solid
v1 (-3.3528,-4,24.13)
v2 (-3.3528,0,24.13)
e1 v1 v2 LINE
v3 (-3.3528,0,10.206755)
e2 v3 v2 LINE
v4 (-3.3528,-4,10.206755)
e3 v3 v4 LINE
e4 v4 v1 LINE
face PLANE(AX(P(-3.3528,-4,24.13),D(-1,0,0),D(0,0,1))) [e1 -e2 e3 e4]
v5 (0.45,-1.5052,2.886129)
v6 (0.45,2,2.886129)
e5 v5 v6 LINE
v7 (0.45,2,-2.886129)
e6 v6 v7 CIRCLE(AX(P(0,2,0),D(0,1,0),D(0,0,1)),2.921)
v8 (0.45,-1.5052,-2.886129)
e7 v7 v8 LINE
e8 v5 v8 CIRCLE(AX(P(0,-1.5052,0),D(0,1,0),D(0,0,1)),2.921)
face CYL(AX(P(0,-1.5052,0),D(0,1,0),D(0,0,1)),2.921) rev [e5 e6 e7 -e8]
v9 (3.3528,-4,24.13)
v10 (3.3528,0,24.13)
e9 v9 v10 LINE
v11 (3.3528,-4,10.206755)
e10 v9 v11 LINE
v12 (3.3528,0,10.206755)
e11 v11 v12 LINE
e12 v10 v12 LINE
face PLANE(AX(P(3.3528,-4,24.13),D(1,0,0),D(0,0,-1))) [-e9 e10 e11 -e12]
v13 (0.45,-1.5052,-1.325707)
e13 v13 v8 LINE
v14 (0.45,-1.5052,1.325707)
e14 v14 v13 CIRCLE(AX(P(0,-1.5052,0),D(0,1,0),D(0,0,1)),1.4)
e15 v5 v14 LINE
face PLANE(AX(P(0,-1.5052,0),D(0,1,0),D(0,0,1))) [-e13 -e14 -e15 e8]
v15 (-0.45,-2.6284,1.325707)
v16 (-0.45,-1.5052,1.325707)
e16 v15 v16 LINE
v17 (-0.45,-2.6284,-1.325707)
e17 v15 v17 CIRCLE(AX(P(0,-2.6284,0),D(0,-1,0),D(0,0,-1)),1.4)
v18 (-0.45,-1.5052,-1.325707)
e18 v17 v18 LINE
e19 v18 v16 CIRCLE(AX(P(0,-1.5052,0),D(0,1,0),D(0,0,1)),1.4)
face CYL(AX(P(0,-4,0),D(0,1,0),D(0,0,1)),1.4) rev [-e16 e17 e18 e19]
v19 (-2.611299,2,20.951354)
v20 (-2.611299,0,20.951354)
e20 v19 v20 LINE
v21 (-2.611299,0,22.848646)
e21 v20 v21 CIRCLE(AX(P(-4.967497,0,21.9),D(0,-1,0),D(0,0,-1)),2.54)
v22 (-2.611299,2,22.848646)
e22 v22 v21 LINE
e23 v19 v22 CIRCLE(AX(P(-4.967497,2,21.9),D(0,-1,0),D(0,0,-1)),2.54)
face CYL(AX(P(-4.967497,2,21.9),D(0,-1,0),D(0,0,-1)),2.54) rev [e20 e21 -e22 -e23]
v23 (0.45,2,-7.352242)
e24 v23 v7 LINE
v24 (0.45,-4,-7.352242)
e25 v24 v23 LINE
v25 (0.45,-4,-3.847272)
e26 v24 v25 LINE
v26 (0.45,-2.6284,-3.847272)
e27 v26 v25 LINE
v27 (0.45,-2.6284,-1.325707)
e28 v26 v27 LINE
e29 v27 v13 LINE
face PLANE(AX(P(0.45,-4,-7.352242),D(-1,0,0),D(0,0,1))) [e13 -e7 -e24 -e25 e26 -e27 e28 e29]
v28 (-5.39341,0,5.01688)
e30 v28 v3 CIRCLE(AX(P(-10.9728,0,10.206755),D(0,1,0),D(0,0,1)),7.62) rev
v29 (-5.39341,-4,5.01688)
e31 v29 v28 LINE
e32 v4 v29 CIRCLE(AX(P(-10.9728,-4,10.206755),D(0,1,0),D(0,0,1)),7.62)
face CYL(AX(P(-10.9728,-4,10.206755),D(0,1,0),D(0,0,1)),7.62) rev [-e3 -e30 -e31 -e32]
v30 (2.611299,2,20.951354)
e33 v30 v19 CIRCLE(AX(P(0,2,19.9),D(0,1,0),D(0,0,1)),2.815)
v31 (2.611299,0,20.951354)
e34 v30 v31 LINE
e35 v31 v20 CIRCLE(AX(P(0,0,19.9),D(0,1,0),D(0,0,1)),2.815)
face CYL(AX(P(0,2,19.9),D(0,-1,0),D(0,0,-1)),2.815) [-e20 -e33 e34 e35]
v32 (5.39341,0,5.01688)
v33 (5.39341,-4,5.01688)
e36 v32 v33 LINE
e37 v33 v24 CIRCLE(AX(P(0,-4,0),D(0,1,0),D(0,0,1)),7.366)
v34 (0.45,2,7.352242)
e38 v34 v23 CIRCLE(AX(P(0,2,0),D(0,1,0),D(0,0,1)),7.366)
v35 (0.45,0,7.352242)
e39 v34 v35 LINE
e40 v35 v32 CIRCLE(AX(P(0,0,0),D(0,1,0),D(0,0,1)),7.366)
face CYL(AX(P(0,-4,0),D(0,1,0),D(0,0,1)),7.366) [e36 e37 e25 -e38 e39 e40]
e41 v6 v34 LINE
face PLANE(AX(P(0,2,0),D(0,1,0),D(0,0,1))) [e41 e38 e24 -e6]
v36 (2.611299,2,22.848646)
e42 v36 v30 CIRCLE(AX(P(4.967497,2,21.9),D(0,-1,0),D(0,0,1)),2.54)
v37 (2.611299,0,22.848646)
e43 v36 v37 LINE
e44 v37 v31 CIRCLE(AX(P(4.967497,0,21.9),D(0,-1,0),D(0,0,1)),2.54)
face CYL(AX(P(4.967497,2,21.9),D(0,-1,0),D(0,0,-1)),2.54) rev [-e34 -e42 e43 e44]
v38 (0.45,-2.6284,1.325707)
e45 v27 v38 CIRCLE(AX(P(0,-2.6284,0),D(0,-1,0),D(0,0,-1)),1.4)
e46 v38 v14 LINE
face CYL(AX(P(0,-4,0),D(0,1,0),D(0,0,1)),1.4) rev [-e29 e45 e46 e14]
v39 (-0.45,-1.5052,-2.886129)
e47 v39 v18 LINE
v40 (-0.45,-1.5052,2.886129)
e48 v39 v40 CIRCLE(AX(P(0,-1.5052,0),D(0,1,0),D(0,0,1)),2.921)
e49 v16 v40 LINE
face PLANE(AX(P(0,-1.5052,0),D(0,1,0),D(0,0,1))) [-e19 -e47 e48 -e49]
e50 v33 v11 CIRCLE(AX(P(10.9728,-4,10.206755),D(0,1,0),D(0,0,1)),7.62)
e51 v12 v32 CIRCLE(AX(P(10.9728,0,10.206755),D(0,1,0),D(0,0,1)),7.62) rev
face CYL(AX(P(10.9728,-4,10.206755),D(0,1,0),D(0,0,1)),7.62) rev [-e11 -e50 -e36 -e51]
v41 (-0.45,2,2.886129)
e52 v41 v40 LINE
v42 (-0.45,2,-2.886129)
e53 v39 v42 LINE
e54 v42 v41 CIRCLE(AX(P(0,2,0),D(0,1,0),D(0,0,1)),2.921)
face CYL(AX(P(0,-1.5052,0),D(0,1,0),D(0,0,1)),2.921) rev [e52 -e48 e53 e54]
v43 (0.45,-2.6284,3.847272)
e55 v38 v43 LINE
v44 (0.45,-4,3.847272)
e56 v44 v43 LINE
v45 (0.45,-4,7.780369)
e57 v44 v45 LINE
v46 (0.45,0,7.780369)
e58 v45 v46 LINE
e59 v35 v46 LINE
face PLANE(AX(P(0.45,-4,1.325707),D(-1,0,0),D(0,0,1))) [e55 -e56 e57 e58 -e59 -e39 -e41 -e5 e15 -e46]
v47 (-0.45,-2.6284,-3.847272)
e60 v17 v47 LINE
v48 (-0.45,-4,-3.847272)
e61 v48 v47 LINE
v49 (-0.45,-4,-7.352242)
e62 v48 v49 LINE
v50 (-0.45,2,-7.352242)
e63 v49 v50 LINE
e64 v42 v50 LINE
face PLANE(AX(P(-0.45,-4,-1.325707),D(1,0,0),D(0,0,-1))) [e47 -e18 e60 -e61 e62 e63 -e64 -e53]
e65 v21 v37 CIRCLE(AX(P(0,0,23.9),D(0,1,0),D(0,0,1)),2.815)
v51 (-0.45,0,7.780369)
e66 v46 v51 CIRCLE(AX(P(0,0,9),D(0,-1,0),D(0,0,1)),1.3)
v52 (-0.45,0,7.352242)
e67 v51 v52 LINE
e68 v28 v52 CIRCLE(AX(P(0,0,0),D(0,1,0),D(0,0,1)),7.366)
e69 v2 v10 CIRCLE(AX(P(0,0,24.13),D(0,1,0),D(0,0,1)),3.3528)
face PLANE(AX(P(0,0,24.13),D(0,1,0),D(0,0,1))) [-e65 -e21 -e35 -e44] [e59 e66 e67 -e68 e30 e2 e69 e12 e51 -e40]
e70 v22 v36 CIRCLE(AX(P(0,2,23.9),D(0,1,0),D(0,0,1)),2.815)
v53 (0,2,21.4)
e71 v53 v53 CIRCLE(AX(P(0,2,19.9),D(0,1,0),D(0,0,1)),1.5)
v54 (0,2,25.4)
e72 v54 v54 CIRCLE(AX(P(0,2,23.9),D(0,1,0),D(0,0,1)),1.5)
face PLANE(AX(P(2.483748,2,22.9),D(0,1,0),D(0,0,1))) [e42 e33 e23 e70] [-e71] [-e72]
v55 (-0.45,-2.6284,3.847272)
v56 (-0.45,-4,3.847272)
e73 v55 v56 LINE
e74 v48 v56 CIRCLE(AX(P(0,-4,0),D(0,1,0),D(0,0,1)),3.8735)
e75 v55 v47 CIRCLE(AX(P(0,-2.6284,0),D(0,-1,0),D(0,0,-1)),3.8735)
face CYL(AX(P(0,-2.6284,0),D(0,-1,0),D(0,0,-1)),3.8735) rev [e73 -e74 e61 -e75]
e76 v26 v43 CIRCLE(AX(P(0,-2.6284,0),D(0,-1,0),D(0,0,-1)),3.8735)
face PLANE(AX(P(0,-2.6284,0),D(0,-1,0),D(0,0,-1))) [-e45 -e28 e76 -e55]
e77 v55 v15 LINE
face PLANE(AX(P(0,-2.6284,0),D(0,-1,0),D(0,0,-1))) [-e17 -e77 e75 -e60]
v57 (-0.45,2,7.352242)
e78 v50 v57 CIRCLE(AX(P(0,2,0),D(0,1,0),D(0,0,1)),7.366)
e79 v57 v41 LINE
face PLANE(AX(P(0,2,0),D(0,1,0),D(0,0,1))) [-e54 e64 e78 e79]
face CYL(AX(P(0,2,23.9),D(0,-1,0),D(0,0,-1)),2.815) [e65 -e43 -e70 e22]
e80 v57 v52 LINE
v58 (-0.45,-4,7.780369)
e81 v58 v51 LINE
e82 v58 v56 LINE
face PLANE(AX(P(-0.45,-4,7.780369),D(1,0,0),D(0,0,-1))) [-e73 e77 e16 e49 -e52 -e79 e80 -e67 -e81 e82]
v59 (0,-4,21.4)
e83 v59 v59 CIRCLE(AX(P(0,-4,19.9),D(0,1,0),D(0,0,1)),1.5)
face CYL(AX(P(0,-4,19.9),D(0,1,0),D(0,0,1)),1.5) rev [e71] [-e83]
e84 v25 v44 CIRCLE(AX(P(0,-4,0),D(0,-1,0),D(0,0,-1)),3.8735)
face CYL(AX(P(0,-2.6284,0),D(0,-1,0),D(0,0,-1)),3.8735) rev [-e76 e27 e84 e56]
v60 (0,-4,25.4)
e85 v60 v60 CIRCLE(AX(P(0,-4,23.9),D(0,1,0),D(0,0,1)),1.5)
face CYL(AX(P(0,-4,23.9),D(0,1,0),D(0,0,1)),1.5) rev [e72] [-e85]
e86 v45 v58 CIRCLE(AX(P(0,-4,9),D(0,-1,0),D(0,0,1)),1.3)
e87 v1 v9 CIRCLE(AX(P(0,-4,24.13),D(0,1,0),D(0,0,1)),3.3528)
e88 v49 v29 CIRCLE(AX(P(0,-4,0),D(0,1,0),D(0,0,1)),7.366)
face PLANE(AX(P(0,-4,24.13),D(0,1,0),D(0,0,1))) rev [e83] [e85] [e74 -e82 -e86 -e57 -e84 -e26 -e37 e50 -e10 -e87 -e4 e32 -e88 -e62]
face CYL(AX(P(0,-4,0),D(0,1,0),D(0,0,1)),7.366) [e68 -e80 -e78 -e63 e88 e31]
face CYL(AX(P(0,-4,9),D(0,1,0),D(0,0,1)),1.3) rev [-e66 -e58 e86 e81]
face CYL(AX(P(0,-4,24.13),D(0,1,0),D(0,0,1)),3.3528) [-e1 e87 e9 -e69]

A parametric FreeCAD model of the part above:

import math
import FreeCAD as App
import Part
import Sketcher
Q = App.Units.Quantity


def edges_at(feature, points):
    """Names of the edges that pass closest to the given points."""
    edges = feature.Shape.Edges
    near = lambda p: min(range(len(edges)), key=lambda i: edges[i].distToShape(Part.Vertex(*p))[0])
    return sorted({f"Edge{near(p) + 1}" for p in points})

doc = App.newDocument("Part")
body = doc.addObject("PartDesign::Body", "Body")

# Sketch on XZ plane
sketch1 = body.newObject("Sketcher::SketchObject", "Sketch")
sketch1.AttachmentSupport = (doc.getObject("XZ_Plane"), [""])
sketch1.MapMode = "FlatFace"
sketch1.addGeometry([
    Part.LineSegment(App.Vector(-3.4, 6.6, 0), App.Vector(-3.4, 24.1, 0)),  # 0
    Part.ArcOfCircle(Part.Circle(App.Vector(0, 24.1, 0), App.Vector(0, 0, 1), 3.4), math.radians(0), math.radians(180)),  # 1
    Part.LineSegment(App.Vector(3.4, 24.1, 0), App.Vector(3.4, 6.6, 0)),  # 2
    Part.ArcOfCircle(Part.Circle(App.Vector(0, 0, 0), App.Vector(0, 0, 1), 7.4), math.radians(-86), math.radians(63)),  # 3
    Part.LineSegment(App.Vector(0.5, -7.4, 0), App.Vector(0.5, -1.3, 0)),  # 4
    Part.ArcOfCircle(Part.Circle(App.Vector(0, 0, 0), App.Vector(0, 0, 1), 1.4), math.radians(-71), math.radians(71)),  # 5
    Part.LineSegment(App.Vector(0.5, 1.3, 0), App.Vector(0.5, 7.8, 0)),  # 6
    Part.ArcOfCircle(Part.Circle(App.Vector(0, 9, 0), App.Vector(0, 0, 1), 1.3), math.radians(-70), math.radians(250)),  # 7
    Part.LineSegment(App.Vector(-0.5, 7.8, 0), App.Vector(-0.5, 1.3, 0)),  # 8
    Part.ArcOfCircle(Part.Circle(App.Vector(0, 0, 0), App.Vector(0, 0, 1), 1.4), math.radians(109), math.radians(251)),  # 9
    Part.LineSegment(App.Vector(-0.5, -1.3, 0), App.Vector(-0.5, -7.4, 0)),  # 10
    Part.ArcOfCircle(Part.Circle(App.Vector(0, 0, 0), App.Vector(0, 0, 1), 7.4), math.radians(117), math.radians(266)),  # 11
    Part.Circle(App.Vector(0, 23.9, 0), App.Vector(0, 0, 1), 1.5),  # 12
    Part.Circle(App.Vector(0, 19.9, 0), App.Vector(0, 0, 1), 1.5),  # 13
], False)
sketch1.addConstraint([
    Sketcher.Constraint("Tangent", 0, 2, 1, 2),
    Sketcher.Constraint("Tangent", 1, 1, 2, 1),
    Sketcher.Constraint("Coincident", 2, 2, 3, 2),
    Sketcher.Constraint("Coincident", 3, 1, 4, 1),
    Sketcher.Constraint("Coincident", 4, 2, 5, 1),
    Sketcher.Constraint("Coincident", 5, 2, 6, 1),
    Sketcher.Constraint("Coincident", 6, 2, 7, 1),
    Sketcher.Constraint("Coincident", 7, 2, 8, 1),
    Sketcher.Constraint("Coincident", 8, 2, 9, 1),
    Sketcher.Constraint("Coincident", 9, 2, 10, 1),
    Sketcher.Constraint("Coincident", 10, 2, 11, 2),
    Sketcher.Constraint("Coincident", 11, 1, 0, 1),
    Sketcher.Constraint("Vertical", 0),
    Sketcher.Constraint("Vertical", 2),
    Sketcher.Constraint("Vertical", 4),
    Sketcher.Constraint("Vertical", 6),
    Sketcher.Constraint("Vertical", 8),
    Sketcher.Constraint("Vertical", 10),
    Sketcher.Constraint("Coincident", 3, 3, -1, 1),
    Sketcher.Constraint("Coincident", 5, 3, -1, 1),
    Sketcher.Constraint("Coincident", 9, 3, -1, 1),
    Sketcher.Constraint("Coincident", 11, 3, -1, 1),
    Sketcher.Constraint("Equal", 5, 9),
    Sketcher.Constraint("Equal", 3, 11),
    Sketcher.Constraint("Equal", 12, 13),
    Sketcher.Constraint("Symmetric", 6, 2, 7, 2, -2),
    Sketcher.Constraint("PointOnObject", 1, 3, -2),
    Sketcher.Constraint("PointOnObject", 12, 3, -2),
    Sketcher.Constraint("PointOnObject", 13, 3, -2),
    Sketcher.Constraint("Horizontal", 4, 2, 9, 2),
    Sketcher.Constraint("Vertical", 4, 2, 5, 2),
    Sketcher.Constraint("Radius", 3, Q("0.29 in")),
    Sketcher.Constraint("Radius", 1, Q("0.132 in")),
    Sketcher.Constraint("Diameter", 12, 3.0),
    Sketcher.Constraint("DistanceY", -1, 1, 1, 3, Q("0.95 in")),
    Sketcher.Constraint("Radius", 5, 1.4),
    Sketcher.Constraint("Radius", 7, 1.3),
    Sketcher.Constraint("DistanceY", 6, 1, 6, 2, 6.454662),
    Sketcher.Constraint("DistanceY", -1, 1, 7, 3, 9.0),
    Sketcher.Constraint("DistanceY", -1, 1, 12, 3, 23.9),
    Sketcher.Constraint("DistanceY", -1, 1, 13, 3, 19.9),
])
pad1 = body.newObject("PartDesign::Pad", "Pad")
pad1.Profile = sketch1
pad1.Length = 4

# Sketch on XZ plane
sketch2 = body.newObject("Sketcher::SketchObject", "Sketch001")
sketch2.AttachmentSupport = (doc.getObject("XZ_Plane"), [""])
sketch2.MapMode = "FlatFace"
sketch2.AttachmentOffset = App.Placement(App.Vector(0, 0, -2), App.Rotation())
sketch2.addGeometry([
    Part.LineSegment(App.Vector(-0.5, -1.3, 0), App.Vector(-0.5, -7.4, 0)),  # 0
    Part.ArcOfCircle(Part.Circle(App.Vector(0, 0, 0), App.Vector(0, 0, 1), 7.4), math.radians(94), math.radians(266)),  # 1
    Part.LineSegment(App.Vector(-0.5, 7.4, 0), App.Vector(-0.5, 1.3, 0)),  # 2
    Part.ArcOfCircle(Part.Circle(App.Vector(0, 0, 0), App.Vector(0, 0, 1), 1.4), math.radians(109), math.radians(251)),  # 3
    Part.LineSegment(App.Vector(0.5, -7.4, 0), App.Vector(0.5, -1.3, 0)),  # 4
    Part.ArcOfCircle(Part.Circle(App.Vector(0, 0, 0), App.Vector(0, 0, 1), 1.4), math.radians(-71), math.radians(71)),  # 5
    Part.LineSegment(App.Vector(0.5, 1.3, 0), App.Vector(0.5, 7.4, 0)),  # 6
    Part.ArcOfCircle(Part.Circle(App.Vector(0, 0, 0), App.Vector(0, 0, 1), 7.4), math.radians(-86), math.radians(86)),  # 7
], False)
sketch2.addConstraint([
    Sketcher.Constraint("Coincident", 0, 2, 1, 2),
    Sketcher.Constraint("Coincident", 1, 1, 2, 1),
    Sketcher.Constraint("Coincident", 2, 2, 3, 1),
    Sketcher.Constraint("Coincident", 3, 2, 0, 1),
    Sketcher.Constraint("Coincident", 4, 2, 5, 1),
    Sketcher.Constraint("Coincident", 5, 2, 6, 1),
    Sketcher.Constraint("Coincident", 6, 2, 7, 2),
    Sketcher.Constraint("Coincident", 7, 1, 4, 1),
    Sketcher.Constraint("Vertical", 0),
    Sketcher.Constraint("Vertical", 2),
    Sketcher.Constraint("Vertical", 4),
    Sketcher.Constraint("Vertical", 6),
    Sketcher.Constraint("Coincident", 1, 3, -1, 1),
    Sketcher.Constraint("Coincident", 3, 3, -1, 1),
    Sketcher.Constraint("Coincident", 5, 3, -1, 1),
    Sketcher.Constraint("Coincident", 7, 3, -1, 1),
    Sketcher.Constraint("Equal", 3, 5),
    Sketcher.Constraint("Equal", 1, 7),
    Sketcher.Constraint("Horizontal", 3, 2, 4, 2),
    Sketcher.Constraint("Horizontal", 2, 2, 5, 2),
    Sketcher.Constraint("Vertical", 0, 2, 1, 1),
    Sketcher.Constraint("Radius", 1, Q("0.29 in")),
    Sketcher.Constraint("Radius", 3, 1.4),
    Sketcher.Constraint("DistanceX", 0, 2, -1, 1, 0.45),
])
pad2 = body.newObject("PartDesign::Pad", "Pad001")
pad2.Profile = sketch2
pad2.Length = 2

# Sketch on XZ plane
sketch3 = body.newObject("Sketcher::SketchObject", "Sketch002")
sketch3.AttachmentSupport = (doc.getObject("XZ_Plane"), [""])
sketch3.MapMode = "FlatFace"
sketch3.AttachmentOffset = App.Placement(App.Vector(0, 0, -2), App.Rotation())
sketch3.addGeometry([
    Part.ArcOfCircle(Part.Circle(App.Vector(0, 19.9, 0), App.Vector(0, 0, 1), 2.8), math.radians(158), math.radians(382)),  # 0
    Part.ArcOfCircle(Part.Circle(App.Vector(-5, 21.9, 0), App.Vector(0, 0, 1), 2.5), math.radians(-22), math.radians(22)),  # 1
    Part.ArcOfCircle(Part.Circle(App.Vector(0, 23.9, 0), App.Vector(0, 0, 1), 2.8), math.radians(-22), math.radians(202)),  # 2
    Part.ArcOfCircle(Part.Circle(App.Vector(5, 21.9, 0), App.Vector(0, 0, 1), 2.5), math.radians(158), math.radians(202)),  # 3
    Part.Circle(App.Vector(0, 23.9, 0), App.Vector(0, 0, 1), 1.5),  # 4
    Part.Circle(App.Vector(0, 19.9, 0), App.Vector(0, 0, 1), 1.5),  # 5
], False)
sketch3.addConstraint([
    Sketcher.Constraint("Tangent", 0, 1, 1, 1),
    Sketcher.Constraint("Tangent", 1, 2, 2, 2),
    Sketcher.Constraint("Tangent", 2, 1, 3, 1),
    Sketcher.Constraint("Tangent", 3, 2, 0, 2),
    Sketcher.Constraint("Coincident", 4, 3, 2, 3),
    Sketcher.Constraint("Coincident", 5, 3, 0, 3),
    Sketcher.Constraint("Equal", 0, 2),
    Sketcher.Constraint("Equal", 1, 3),
    Sketcher.Constraint("Equal", 4, 5),
    Sketcher.Constraint("Symmetric", 1, 3, 3, 3, -2),
    Sketcher.Constraint("Radius", 1, Q("0.1 in")),
    Sketcher.Constraint("Diameter", 4, 3.0),
    Sketcher.Constraint("Radius", 0, 2.815),
    Sketcher.Constraint("DistanceY", -1, 1, 0, 3, 19.9),
    Sketcher.Constraint("DistanceY", -1, 1, 1, 3, 21.9),
])
pad3 = body.newObject("PartDesign::Pad", "Pad002")
pad3.Profile = sketch3
pad3.Length = 2

# Sketch on XZ plane
sketch4 = body.newObject("Sketcher::SketchObject", "Sketch003")
sketch4.AttachmentSupport = (doc.getObject("XZ_Plane"), [""])
sketch4.MapMode = "FlatFace"
sketch4.AttachmentOffset = App.Placement(App.Vector(0, 0, -2), App.Rotation())
sketch4.addGeometry(Part.Circle(App.Vector(0, 0, 0), App.Vector(0, 0, 1), 2.9), False)
sketch4.addConstraint([
    Sketcher.Constraint("Coincident", 0, 3, -1, 1),
    Sketcher.Constraint("Diameter", 0, Q("0.23 in")),
])
pocket1 = body.newObject("PartDesign::Pocket", "Pocket")
pocket1.Profile = sketch4
pocket1.Length = Q("0.138 in")
pocket1.Reversed = True
doc.recompute()

fillet = body.newObject("PartDesign::Fillet", "Fillet")
fillet.Base = (pocket1, edges_at(pocket1, [(-3.353, -2, 6.559), (3.353, -2, 6.559)]))
fillet.Radius = Q("0.3 in")

# Sketch on XZ plane
sketch5 = body.newObject("Sketcher::SketchObject", "Sketch004")
sketch5.AttachmentSupport = (doc.getObject("XZ_Plane"), [""])
sketch5.MapMode = "FlatFace"
sketch5.AttachmentOffset = App.Placement(App.Vector(0, 0, 4), App.Rotation())
sketch5.addGeometry(Part.Circle(App.Vector(0, 0, 0), App.Vector(0, 0, 1), 3.9), False)
sketch5.addConstraint([
    Sketcher.Constraint("Coincident", 0, 3, -1, 1),
    Sketcher.Constraint("Diameter", 0, Q("0.305 in")),
])
pocket2 = body.newObject("PartDesign::Pocket", "Pocket001")
pocket2.Profile = sketch5
pocket2.Length = Q("0.054 in")

doc.recompute()
